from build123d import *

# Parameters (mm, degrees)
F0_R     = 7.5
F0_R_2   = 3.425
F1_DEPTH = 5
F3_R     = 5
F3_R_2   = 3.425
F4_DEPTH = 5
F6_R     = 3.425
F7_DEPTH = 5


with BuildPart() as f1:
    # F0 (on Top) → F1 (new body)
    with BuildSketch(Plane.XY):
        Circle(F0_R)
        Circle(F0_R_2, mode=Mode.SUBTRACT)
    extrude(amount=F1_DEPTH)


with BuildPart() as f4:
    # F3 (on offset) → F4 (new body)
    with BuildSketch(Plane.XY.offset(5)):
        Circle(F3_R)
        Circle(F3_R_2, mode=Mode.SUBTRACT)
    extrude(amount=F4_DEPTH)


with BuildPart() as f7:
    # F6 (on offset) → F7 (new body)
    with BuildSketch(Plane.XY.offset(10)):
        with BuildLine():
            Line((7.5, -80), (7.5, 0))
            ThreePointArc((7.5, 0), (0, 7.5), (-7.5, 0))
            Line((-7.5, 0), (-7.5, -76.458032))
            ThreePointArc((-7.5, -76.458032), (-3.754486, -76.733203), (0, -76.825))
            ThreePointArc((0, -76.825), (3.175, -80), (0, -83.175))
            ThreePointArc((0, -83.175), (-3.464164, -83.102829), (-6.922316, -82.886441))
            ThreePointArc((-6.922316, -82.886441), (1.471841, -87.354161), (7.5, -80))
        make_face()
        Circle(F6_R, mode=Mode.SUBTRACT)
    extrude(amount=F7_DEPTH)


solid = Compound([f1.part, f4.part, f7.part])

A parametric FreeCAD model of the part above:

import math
import FreeCAD as App
import Part
import Sketcher

doc = App.newDocument("Part")
body = doc.addObject("PartDesign::Body", "Body")

sketch1 = body.newObject("Sketcher::SketchObject", "Sketch")
sketch1.AttachmentSupport = (doc.getObject("XY_Plane"), [""])
sketch1.MapMode = "FlatFace"
sketch1.addGeometry([
    Part.Circle(App.Vector(0, 0, 0), App.Vector(0, 0, 1), 7.5),
    Part.Circle(App.Vector(0, 0, 0), App.Vector(0, 0, 1), 3.4),
], False)
sketch1.addConstraint([
    Sketcher.Constraint("Coincident", 0, 3, -1, 1),
    Sketcher.Constraint("Coincident", 1, 3, -1, 1),
    Sketcher.Constraint("Diameter", 0, 15.0),
    Sketcher.Constraint("Diameter", 1, 6.85),
])
pad1 = body.newObject("PartDesign::Pad", "Pad")
pad1.Profile = sketch1
pad1.Length = 5
body2 = doc.addObject("PartDesign::Body", "Body001")

sketch2 = body2.newObject("Sketcher::SketchObject", "Sketch001")
sketch2.AttachmentSupport = (doc.getObject("XY_Plane001"), [""])
sketch2.MapMode = "FlatFace"
sketch2.AttachmentOffset = App.Placement(App.Vector(0, 0, 5), App.Rotation())
sketch2.addGeometry([
    Part.Circle(App.Vector(0, 0, 0), App.Vector(0, 0, 1), 5),
    Part.Circle(App.Vector(0, 0, 0), App.Vector(0, 0, 1), 3.4),
], False)
sketch2.addConstraint([
    Sketcher.Constraint("Coincident", 0, 3, -1, 1),
    Sketcher.Constraint("Coincident", 1, 3, -1, 1),
    Sketcher.Constraint("Diameter", 0, 10.0),
    Sketcher.Constraint("Diameter", 1, 6.85),
])
pad2 = body2.newObject("PartDesign::Pad", "Pad001")
pad2.Profile = sketch2
pad2.Length = 5
body3 = doc.addObject("PartDesign::Body", "Body002")

sketch3 = body3.newObject("Sketcher::SketchObject", "Sketch002")
sketch3.AttachmentSupport = (doc.getObject("XY_Plane002"), [""])
sketch3.MapMode = "FlatFace"
sketch3.AttachmentOffset = App.Placement(App.Vector(0, 0, 10), App.Rotation())
sketch3.addGeometry([
    Part.LineSegment(App.Vector(7.5, -80, 0), App.Vector(7.5, 0, 0)),
    Part.ArcOfCircle(Part.Circle(App.Vector(0, 0, 0), App.Vector(0, 0, 1), 7.5), math.radians(0), math.radians(180)),
    Part.LineSegment(App.Vector(-7.5, 0, 0), App.Vector(-7.5, -76.458032, 0)),
    Part.ArcOfCircle(Part.Circle(App.Vector(0.000007, 0.000182, 0), App.Vector(0, 0, 1), 76.825182), math.radians(-95.602385), math.radians(-90.000005)),
    Part.ArcOfCircle(Part.Circle(App.Vector(0, -80, 0), App.Vector(0, 0, 1), 3.175), math.radians(-90), math.radians(90)),
    Part.ArcOfCircle(Part.Circle(App.Vector(-0.000003, -0.000189, 0), App.Vector(0, 0, 1), 83.174811), math.radians(-94.774025), math.radians(-89.999998)),
    Part.ArcOfCircle(Part.Circle(App.Vector(0, -80, 0), App.Vector(0, 0, 1), 7.5), math.radians(-157.365025), math.radians(0)),
    Part.Circle(App.Vector(0, 0, 0), App.Vector(0, 0, 1), 3.425),
], False)
sketch3.addConstraint([
    Sketcher.Constraint("Tangent", 0, 2, 1, 1),
    Sketcher.Constraint("Tangent", 1, 2, 2, 1),
    Sketcher.Constraint("Coincident", 2, 2, 3, 1),
    Sketcher.Constraint("Tangent", 3, 2, 4, 2),
    Sketcher.Constraint("Tangent", 4, 1, 5, 2),
    Sketcher.Constraint("Coincident", 5, 1, 6, 1),
    Sketcher.Constraint("Tangent", 6, 2, 0, 1),
    Sketcher.Constraint("Vertical", 0),
    Sketcher.Constraint("Vertical", 2),
    Sketcher.Constraint("Coincident", 1, 3, -1, 1),
    Sketcher.Constraint("Coincident", 7, 3, -1, 1),
    Sketcher.Constraint("Coincident", 6, 3, 4, 3),
    Sketcher.Constraint("Equal", 1, 6),
    Sketcher.Constraint("Symmetric", 3, 3, 5, 3, -1, 1),
    Sketcher.Constraint("PointOnObject", 4, 1, -2),
    Sketcher.Constraint("Radius", 1, 7.5),
    Sketcher.Constraint("Diameter", 7, 6.85),
    Sketcher.Constraint("DistanceY", 0, 1, 0, 2, 80.0),
    Sketcher.Constraint("Radius", 4, 3.175),
    Sketcher.Constraint("Radius", 3, 76.825182),
])
pad3 = body3.newObject("PartDesign::Pad", "Pad002")
pad3.Profile = sketch3
pad3.Length = 5

doc.recompute()
